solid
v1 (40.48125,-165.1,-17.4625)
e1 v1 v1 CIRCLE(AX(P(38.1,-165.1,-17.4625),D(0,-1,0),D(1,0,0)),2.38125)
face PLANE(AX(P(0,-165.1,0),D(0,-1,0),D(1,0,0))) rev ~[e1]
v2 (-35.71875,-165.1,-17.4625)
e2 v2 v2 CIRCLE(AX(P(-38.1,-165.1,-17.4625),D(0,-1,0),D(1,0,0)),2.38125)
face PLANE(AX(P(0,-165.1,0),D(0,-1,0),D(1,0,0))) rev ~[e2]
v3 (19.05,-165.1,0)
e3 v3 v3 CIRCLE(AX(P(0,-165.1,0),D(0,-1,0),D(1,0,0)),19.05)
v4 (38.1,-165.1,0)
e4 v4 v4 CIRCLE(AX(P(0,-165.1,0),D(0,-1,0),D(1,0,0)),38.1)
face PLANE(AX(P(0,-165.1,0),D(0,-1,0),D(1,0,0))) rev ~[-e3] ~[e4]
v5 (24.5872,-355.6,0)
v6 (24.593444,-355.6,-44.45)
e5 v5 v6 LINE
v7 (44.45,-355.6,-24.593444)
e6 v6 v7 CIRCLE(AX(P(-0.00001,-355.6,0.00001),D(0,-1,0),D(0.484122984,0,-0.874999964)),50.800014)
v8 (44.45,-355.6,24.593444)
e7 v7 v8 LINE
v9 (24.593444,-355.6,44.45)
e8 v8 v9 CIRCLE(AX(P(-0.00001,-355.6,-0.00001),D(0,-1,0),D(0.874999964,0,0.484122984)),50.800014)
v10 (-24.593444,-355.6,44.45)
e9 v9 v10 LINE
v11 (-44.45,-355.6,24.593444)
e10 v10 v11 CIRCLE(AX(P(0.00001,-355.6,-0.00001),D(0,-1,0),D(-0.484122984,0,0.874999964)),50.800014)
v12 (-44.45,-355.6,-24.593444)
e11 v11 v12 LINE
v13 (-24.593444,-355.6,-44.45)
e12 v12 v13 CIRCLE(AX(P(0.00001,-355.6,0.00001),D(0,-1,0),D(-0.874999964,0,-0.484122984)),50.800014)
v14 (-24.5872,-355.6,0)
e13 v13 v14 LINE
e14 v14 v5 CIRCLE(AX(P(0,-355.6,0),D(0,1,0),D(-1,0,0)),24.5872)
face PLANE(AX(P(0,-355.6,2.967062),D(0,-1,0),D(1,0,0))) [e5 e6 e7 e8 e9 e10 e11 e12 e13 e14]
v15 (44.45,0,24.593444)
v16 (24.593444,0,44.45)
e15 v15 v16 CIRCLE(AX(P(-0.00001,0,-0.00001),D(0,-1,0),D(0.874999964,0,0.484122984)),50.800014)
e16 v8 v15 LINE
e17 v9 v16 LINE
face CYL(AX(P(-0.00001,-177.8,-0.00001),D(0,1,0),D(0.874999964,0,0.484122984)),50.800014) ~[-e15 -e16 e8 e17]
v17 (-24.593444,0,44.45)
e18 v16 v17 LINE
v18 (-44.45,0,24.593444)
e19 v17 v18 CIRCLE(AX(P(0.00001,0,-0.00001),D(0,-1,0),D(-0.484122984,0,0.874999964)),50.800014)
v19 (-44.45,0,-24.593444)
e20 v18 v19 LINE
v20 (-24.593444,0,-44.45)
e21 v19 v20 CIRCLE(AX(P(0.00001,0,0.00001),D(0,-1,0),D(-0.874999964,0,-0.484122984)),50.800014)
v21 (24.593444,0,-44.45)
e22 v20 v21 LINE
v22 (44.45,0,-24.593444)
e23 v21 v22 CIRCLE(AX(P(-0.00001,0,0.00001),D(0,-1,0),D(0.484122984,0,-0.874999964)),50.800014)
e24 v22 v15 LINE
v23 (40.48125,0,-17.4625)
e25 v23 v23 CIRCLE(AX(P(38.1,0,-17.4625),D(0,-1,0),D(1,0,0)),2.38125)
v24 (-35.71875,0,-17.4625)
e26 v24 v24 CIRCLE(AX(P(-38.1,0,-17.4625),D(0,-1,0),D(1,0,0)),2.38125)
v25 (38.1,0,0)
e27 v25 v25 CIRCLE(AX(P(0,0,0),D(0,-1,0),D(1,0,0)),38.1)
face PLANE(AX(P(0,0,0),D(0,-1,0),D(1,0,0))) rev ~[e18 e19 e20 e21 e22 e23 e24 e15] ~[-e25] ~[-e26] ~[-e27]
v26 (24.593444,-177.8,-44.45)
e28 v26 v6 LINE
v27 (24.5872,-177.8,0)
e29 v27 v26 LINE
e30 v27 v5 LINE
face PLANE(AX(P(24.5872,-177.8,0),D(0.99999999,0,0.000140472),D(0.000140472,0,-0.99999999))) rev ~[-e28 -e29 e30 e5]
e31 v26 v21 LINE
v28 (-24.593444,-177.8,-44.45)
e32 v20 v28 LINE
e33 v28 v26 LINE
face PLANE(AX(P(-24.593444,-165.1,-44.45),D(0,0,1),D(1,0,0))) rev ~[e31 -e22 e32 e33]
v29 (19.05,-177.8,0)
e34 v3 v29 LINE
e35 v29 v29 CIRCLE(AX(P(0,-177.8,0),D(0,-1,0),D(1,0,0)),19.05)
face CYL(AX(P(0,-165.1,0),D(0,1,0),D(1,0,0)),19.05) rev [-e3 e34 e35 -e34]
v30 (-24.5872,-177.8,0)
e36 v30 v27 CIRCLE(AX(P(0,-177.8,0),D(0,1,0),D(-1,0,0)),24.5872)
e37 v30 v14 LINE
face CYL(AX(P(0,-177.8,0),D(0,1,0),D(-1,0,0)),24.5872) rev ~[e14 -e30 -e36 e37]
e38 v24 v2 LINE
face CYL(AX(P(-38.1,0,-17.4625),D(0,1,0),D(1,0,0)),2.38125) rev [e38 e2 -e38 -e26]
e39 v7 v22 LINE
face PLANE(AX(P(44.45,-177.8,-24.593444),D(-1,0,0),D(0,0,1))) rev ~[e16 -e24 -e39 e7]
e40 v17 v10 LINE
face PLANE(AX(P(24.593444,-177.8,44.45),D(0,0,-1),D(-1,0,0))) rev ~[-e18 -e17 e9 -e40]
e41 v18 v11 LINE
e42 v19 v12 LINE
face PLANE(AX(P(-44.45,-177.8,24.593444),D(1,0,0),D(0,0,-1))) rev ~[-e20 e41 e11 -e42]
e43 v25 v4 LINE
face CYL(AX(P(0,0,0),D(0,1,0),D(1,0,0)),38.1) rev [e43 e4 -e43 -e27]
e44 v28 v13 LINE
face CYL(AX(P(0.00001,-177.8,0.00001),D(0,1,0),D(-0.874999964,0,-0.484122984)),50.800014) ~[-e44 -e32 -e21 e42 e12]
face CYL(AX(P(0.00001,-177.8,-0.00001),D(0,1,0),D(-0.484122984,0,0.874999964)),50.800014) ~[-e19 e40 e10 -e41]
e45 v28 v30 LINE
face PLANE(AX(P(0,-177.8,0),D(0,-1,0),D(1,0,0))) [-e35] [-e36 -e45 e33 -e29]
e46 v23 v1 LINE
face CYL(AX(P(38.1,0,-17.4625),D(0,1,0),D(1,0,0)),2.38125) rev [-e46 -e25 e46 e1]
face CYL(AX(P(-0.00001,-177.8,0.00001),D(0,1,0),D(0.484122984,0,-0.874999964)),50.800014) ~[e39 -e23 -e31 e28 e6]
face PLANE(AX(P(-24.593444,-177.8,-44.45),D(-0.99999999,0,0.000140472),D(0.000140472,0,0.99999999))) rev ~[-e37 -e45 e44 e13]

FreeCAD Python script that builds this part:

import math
import FreeCAD as App
import Part
import Sketcher
from FreeCAD import Vector
Q = App.Units.Quantity

doc = App.newDocument("Part")
body = doc.addObject("PartDesign::Body", "Body")

# Sketch on XZ plane
sketch1 = doc.addObject("Sketcher::SketchObject", "Sketch")
body.addObject(sketch1)
sketch1.AttachmentSupport = (doc.XZ_Plane, [""])
sketch1.MapMode = "FlatFace"
sketch1.addGeometry([
    Part.LineSegment(Vector(24.593444, 44.45, 0), Vector(-24.593444, 44.45, 0)),  # 0
    Part.ArcOfCircle(Part.Circle(Vector(0.00001, -0.00001, 0), Vector(0, 0, 1), 50.800014), math.radians(118.955029), math.radians(151.044971)),  # 1
    Part.LineSegment(Vector(-44.45, 24.593444, 0), Vector(-44.45, -24.593444, 0)),  # 2
    Part.ArcOfCircle(Part.Circle(Vector(0.00001, 0.00001, 0), Vector(0, 0, 1), 50.800014), math.radians(-151.044971), math.radians(-118.955029)),  # 3
    Part.LineSegment(Vector(-24.593444, -44.45, 0), Vector(24.593444, -44.45, 0)),  # 4
    Part.ArcOfCircle(Part.Circle(Vector(-0.00001, 0.00001, 0), Vector(0, 0, 1), 50.800014), math.radians(-61.044971), math.radians(-28.955029)),  # 5
    Part.LineSegment(Vector(44.45, -24.593444, 0), Vector(44.45, 24.593444, 0)),  # 6
    Part.ArcOfCircle(Part.Circle(Vector(-0.00001, -0.00001, 0), Vector(0, 0, 1), 50.800014), math.radians(28.955029), math.radians(61.044971)),  # 7
    Part.Circle(Vector(-38.1, -17.4625, 0), Vector(0, 0, 1), 2.38125),  # 8
    Part.Circle(Vector(38.1, -17.4625, 0), Vector(0, 0, 1), 2.38125),  # 9
    Part.Circle(Vector(0, 0, 0), Vector(0, 0, 1), 38.1),  # 10
], False)
sketch1.addConstraint([
    Sketcher.Constraint("Coincident", 0, 2, 1, 1),
    Sketcher.Constraint("Coincident", 1, 2, 2, 1),
    Sketcher.Constraint("Coincident", 2, 2, 3, 1),
    Sketcher.Constraint("Coincident", 3, 2, 4, 1),
    Sketcher.Constraint("Coincident", 4, 2, 5, 1),
    Sketcher.Constraint("Coincident", 5, 2, 6, 1),
    Sketcher.Constraint("Coincident", 6, 2, 7, 1),
    Sketcher.Constraint("Coincident", 7, 2, 0, 1),
    Sketcher.Constraint("Horizontal", 0),
    Sketcher.Constraint("Vertical", 2),
    Sketcher.Constraint("Horizontal", 4),
    Sketcher.Constraint("Vertical", 6),
    Sketcher.Constraint("Coincident", 10, 3, -1, 1),
    Sketcher.Constraint("Equal", 1, 3),
    Sketcher.Constraint("Equal", 3, 5),
    Sketcher.Constraint("Equal", 5, 7),
    Sketcher.Constraint("Equal", 8, 9),
    Sketcher.Constraint("Symmetric", 1, 3, 5, 3, -1, 1),
    Sketcher.Constraint("Symmetric", 3, 3, 7, 3, -1, 1),
    Sketcher.Constraint("Symmetric", 3, 3, 5, 3, -2),
    Sketcher.Constraint("Symmetric", 8, 3, 9, 3, -2),
    Sketcher.Constraint("Horizontal", 2, 2, 5, 2),
    Sketcher.Constraint("Vertical", 0, 2, 3, 2),
    Sketcher.Constraint("Equal", 4, 2),
    Sketcher.Constraint("Diameter", 10, Q("3 in")),
    Sketcher.Constraint("Diameter", 8, Q("0.1875 in")),
    Sketcher.Constraint("DistanceX", 8, 3, 9, 3, Q("3 in")),
    Sketcher.Constraint("DistanceY", -1, 1, 0, 2, Q("1.75 in")),
    Sketcher.Constraint("DistanceX", 1, 2, -1, 1, Q("1.75 in")),
    Sketcher.Constraint("DistanceY", 8, 3, -1, 1, Q("0.6875 in")),
    Sketcher.Constraint("Radius", 1, 50.800014),
    Sketcher.Constraint("DistanceX", 0, 2, 0, 1, 49.186888),
])
pad1 = doc.addObject("PartDesign::Pad", "Pad")
body.addObject(pad1)
pad1.Profile = sketch1
pad1.Length = Q("6.5 in")

# Sketch on XZ plane
sketch2 = doc.addObject("Sketcher::SketchObject", "Sketch001")
body.addObject(sketch2)
sketch2.AttachmentSupport = (doc.XZ_Plane, [""])
sketch2.MapMode = "FlatFace"
sketch2.AttachmentOffset = App.Placement(Vector(0, 0, 6.5 * 25.4), App.Rotation())
sketch2.addGeometry([
    Part.LineSegment(Vector(24.593444, 44.45, 0), Vector(-24.593444, 44.45, 0)),  # 0
    Part.ArcOfCircle(Part.Circle(Vector(0.00001, -0.00001, 0), Vector(0, 0, 1), 50.800014), math.radians(118.955029), math.radians(151.044971)),  # 1
    Part.LineSegment(Vector(-44.45, 24.593444, 0), Vector(-44.45, -24.593444, 0)),  # 2
    Part.ArcOfCircle(Part.Circle(Vector(0.00001, 0.00001, 0), Vector(0, 0, 1), 50.800014), math.radians(-151.044971), math.radians(-118.955029)),  # 3
    Part.LineSegment(Vector(-24.593444, -44.45, 0), Vector(24.593444, -44.45, 0)),  # 4
    Part.ArcOfCircle(Part.Circle(Vector(-0.00001, 0.00001, 0), Vector(0, 0, 1), 50.800014), math.radians(-61.044971), math.radians(-28.955029)),  # 5
    Part.LineSegment(Vector(44.45, -24.593444, 0), Vector(44.45, 24.593444, 0)),  # 6
    Part.ArcOfCircle(Part.Circle(Vector(-0.00001, -0.00001, 0), Vector(0, 0, 1), 50.800014), math.radians(28.955029), math.radians(61.044971)),  # 7
    Part.Circle(Vector(0, 0, 0), Vector(0, 0, 1), 19.05),  # 8
], False)
sketch2.addConstraint([
    Sketcher.Constraint("Coincident", 0, 2, 1, 1),
    Sketcher.Constraint("Coincident", 1, 2, 2, 1),
    Sketcher.Constraint("Coincident", 2, 2, 3, 1),
    Sketcher.Constraint("Coincident", 3, 2, 4, 1),
    Sketcher.Constraint("Coincident", 4, 2, 5, 1),
    Sketcher.Constraint("Coincident", 5, 2, 6, 1),
    Sketcher.Constraint("Coincident", 6, 2, 7, 1),
    Sketcher.Constraint("Coincident", 7, 2, 0, 1),
    Sketcher.Constraint("Horizontal", 0),
    Sketcher.Constraint("Vertical", 2),
    Sketcher.Constraint("Horizontal", 4),
    Sketcher.Constraint("Vertical", 6),
    Sketcher.Constraint("Coincident", 8, 3, -1, 1),
    Sketcher.Constraint("Equal", 1, 3),
    Sketcher.Constraint("Equal", 3, 5),
    Sketcher.Constraint("Equal", 5, 7),
    Sketcher.Constraint("Symmetric", 1, 3, 5, 3, -1, 1),
    Sketcher.Constraint("Symmetric", 3, 3, 7, 3, -1, 1),
    Sketcher.Constraint("Symmetric", 3, 3, 5, 3, -2),
    Sketcher.Constraint("Horizontal", 2, 2, 5, 2),
    Sketcher.Constraint("Vertical", 0, 2, 3, 2),
    Sketcher.Constraint("Equal", 4, 2),
    Sketcher.Constraint("Diameter", 8, Q("1.5 in")),
    Sketcher.Constraint("DistanceY", -1, 1, 0, 2, Q("1.75 in")),
    Sketcher.Constraint("DistanceX", 1, 2, -1, 1, Q("1.75 in")),
    Sketcher.Constraint("Radius", 1, 50.800014),
    Sketcher.Constraint("DistanceX", 0, 2, 0, 1, 49.186888),
])
pad2 = doc.addObject("PartDesign::Pad", "Pad001")
body.addObject(pad2)
pad2.Profile = sketch2
pad2.Length = Q("0.5 in")

# Sketch on XZ plane
sketch3 = doc.addObject("Sketcher::SketchObject", "Sketch002")
body.addObject(sketch3)
sketch3.AttachmentSupport = (doc.XZ_Plane, [""])
sketch3.MapMode = "FlatFace"
sketch3.AttachmentOffset = App.Placement(Vector(0, 0, 7 * 25.4), App.Rotation())
sketch3.addGeometry([
    Part.LineSegment(Vector(24.593444, 44.45, 0), Vector(-24.593444, 44.45, 0)),  # 0
    Part.ArcOfCircle(Part.Circle(Vector(0.00001, -0.00001, 0), Vector(0, 0, 1), 50.800014), math.radians(118.955029), math.radians(151.044971)),  # 1
    Part.LineSegment(Vector(-44.45, 24.593444, 0), Vector(-44.45, -24.593444, 0)),  # 2
    Part.ArcOfCircle(Part.Circle(Vector(0.00001, 0.00001, 0), Vector(0, 0, 1), 50.800014), math.radians(-151.044971), math.radians(-118.955029)),  # 3
    Part.LineSegment(Vector(-24.593444, -44.45, 0), Vector(-24.5872, 0, 0)),  # 4
    Part.ArcOfCircle(Part.Circle(Vector(0, 0, 0), Vector(0, 0, 1), 24.5872), math.radians(0), math.radians(180)),  # 5
    Part.LineSegment(Vector(24.5872, 0, 0), Vector(24.593444, -44.45, 0)),  # 6
    Part.ArcOfCircle(Part.Circle(Vector(-0.00001, 0.00001, 0), Vector(0, 0, 1), 50.800014), math.radians(-61.044971), math.radians(-28.955029)),  # 7
    Part.LineSegment(Vector(44.45, -24.593444, 0), Vector(44.45, 24.593444, 0)),  # 8
    Part.ArcOfCircle(Part.Circle(Vector(-0.00001, -0.00001, 0), Vector(0, 0, 1), 50.800014), math.radians(28.955029), math.radians(61.044971)),  # 9
], False)
sketch3.addConstraint([
    Sketcher.Constraint("Coincident", 0, 2, 1, 1),
    Sketcher.Constraint("Coincident", 1, 2, 2, 1),
    Sketcher.Constraint("Coincident", 2, 2, 3, 1),
    Sketcher.Constraint("Coincident", 3, 2, 4, 1),
    Sketcher.Constraint("Coincident", 4, 2, 5, 2),
    Sketcher.Constraint("Coincident", 5, 1, 6, 1),
    Sketcher.Constraint("Coincident", 6, 2, 7, 1),
    Sketcher.Constraint("Coincident", 7, 2, 8, 1),
    Sketcher.Constraint("Coincident", 8, 2, 9, 1),
    Sketcher.Constraint("Coincident", 9, 2, 0, 1),
    Sketcher.Constraint("Horizontal", 0),
    Sketcher.Constraint("Vertical", 2),
    Sketcher.Constraint("Vertical", 8),
    Sketcher.Constraint("Coincident", 5, 3, -1, 1),
    Sketcher.Constraint("Equal", 1, 3),
    Sketcher.Constraint("Equal", 3, 7),
    Sketcher.Constraint("Equal", 7, 9),
    Sketcher.Constraint("Symmetric", 1, 3, 7, 3, -1, 1),
    Sketcher.Constraint("Symmetric", 3, 3, 9, 3, -1, 1),
    Sketcher.Constraint("Symmetric", 3, 3, 7, 3, -2),
    Sketcher.Constraint("PointOnObject", 4, 2, -1),
    Sketcher.Constraint("PointOnObject", 5, 1, -1),
    Sketcher.Constraint("Horizontal", 3, 2, 6, 2),
    Sketcher.Constraint("Horizontal", 2, 2, 7, 2),
    Sketcher.Constraint("Vertical", 0, 2, 3, 2),
    Sketcher.Constraint("Equal", 0, 2),
    Sketcher.Constraint("Radius", 5, Q("0.968 in")),
    Sketcher.Constraint("Distance", 4, Q("1.75 in")),
    Sketcher.Constraint("DistanceX", 1, 2, -1, 1, Q("1.75 in")),
    Sketcher.Constraint("Radius", 1, 50.800014),
    Sketcher.Constraint("DistanceX", 0, 2, 0, 1, 49.186888),
])
pad3 = doc.addObject("PartDesign::Pad", "Pad002")
body.addObject(pad3)
pad3.Profile = sketch3
pad3.Length = Q("7 in")

doc.recompute()
